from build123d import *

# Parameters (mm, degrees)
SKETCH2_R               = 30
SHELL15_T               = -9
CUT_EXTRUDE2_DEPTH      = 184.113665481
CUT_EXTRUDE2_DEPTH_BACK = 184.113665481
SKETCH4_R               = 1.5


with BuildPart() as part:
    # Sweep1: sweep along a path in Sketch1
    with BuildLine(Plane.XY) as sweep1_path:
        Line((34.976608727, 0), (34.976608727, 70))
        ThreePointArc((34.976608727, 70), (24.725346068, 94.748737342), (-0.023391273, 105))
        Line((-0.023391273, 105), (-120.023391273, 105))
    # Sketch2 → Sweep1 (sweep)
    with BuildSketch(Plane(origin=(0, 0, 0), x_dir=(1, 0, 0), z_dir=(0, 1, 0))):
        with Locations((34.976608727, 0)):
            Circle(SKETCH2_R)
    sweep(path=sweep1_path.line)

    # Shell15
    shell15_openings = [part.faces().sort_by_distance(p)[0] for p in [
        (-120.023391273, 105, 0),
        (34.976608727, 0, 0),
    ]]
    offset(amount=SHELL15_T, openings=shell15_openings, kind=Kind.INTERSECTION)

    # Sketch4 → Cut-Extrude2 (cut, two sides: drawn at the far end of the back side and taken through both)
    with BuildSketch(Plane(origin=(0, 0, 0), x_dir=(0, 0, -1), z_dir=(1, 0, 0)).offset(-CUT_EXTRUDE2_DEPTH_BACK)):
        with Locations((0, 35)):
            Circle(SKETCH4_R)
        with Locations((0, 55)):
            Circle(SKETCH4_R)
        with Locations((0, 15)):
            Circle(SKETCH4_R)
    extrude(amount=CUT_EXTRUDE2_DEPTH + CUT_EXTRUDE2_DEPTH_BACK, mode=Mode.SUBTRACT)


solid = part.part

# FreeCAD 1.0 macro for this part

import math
import FreeCAD as App
import Part
import Sketcher

V = App.Vector
Q = App.Units.Quantity


def faces_at(feature, points):
    """Names of the faces that lie closest to the given points."""
    faces = feature.Shape.Faces
    near = lambda p: min(range(len(faces)), key=lambda i: faces[i].distToShape(Part.Vertex(*p))[0])
    return sorted({f"Face{near(p) + 1}" for p in points})

doc = App.newDocument("Part")
params = doc.addObject("Spreadsheet::Sheet", "Params")
for row, (alias, value) in enumerate([
    ("sketch1_diameter", "60 mm"),
    ("sketch2_radius", "35 mm"),
    ("sketch2_width", "120 mm"),
    ("sketch2_height", "70 mm"),
    ("thickness_wall", "9 mm"),
    ("sketch3_diameter", "3 mm"),
], start=1):
    params.set(f"A{row}", alias)
    params.set(f"B{row}", "=" + value)
    params.setAlias(f"B{row}", alias)

body = doc.addObject("PartDesign::Body", "Body")

sketch1 = doc.addObject("Sketcher::SketchObject", "Sketch")
body.addObject(sketch1)
sketch1.AttachmentSupport = (doc.XZ_Plane, [""])
sketch1.MapMode = "FlatFace"
sketch1.addGeometry(Part.Circle(V(34.976609, 0, 0), V(0, 0, 1), 30), False)
sketch1.addConstraint([
    Sketcher.Constraint("PointOnObject", 0, 3, -1),
    Sketcher.Constraint("Diameter", 0, Q("60 mm")),
    Sketcher.Constraint("DistanceX", -1, 1, 0, 3, Q("34.976609 mm")),
])
sketch1.setExpression("Constraints[1]", "Params.sketch1_diameter")

sketch2 = doc.addObject("Sketcher::SketchObject", "Sketch001")
body.addObject(sketch2)
sketch2.AttachmentSupport = (doc.XY_Plane, [""])
sketch2.MapMode = "FlatFace"
sketch2.addGeometry([
    Part.LineSegment(V(34.976609, 0, 0), V(34.976609, 70, 0)),
    Part.ArcOfCircle(Part.Circle(V(-0.023391, 70, 0), V(0, 0, 1), 35), math.radians(0), math.radians(90)),
    Part.LineSegment(V(-0.023391, 105, 0), V(-120.023391, 105, 0)),
], False)
sketch2.addConstraint([
    Sketcher.Constraint("Tangent", 0, 2, 1, 1),
    Sketcher.Constraint("Tangent", 1, 2, 2, 1),
    Sketcher.Constraint("Vertical", 0),
    Sketcher.Constraint("Horizontal", 2),
    Sketcher.Constraint("PointOnObject", 0, 1, -1),
    Sketcher.Constraint("Radius", 1, Q("35 mm")),
    Sketcher.Constraint("DistanceX", 2, 2, 2, 1, Q("120 mm")),
    Sketcher.Constraint("DistanceY", 0, 1, 0, 2, Q("70 mm")),
    Sketcher.Constraint("DistanceX", 1, 3, -1, 1, Q("0.023391 mm")),
])
sketch2.setExpression("Constraints[5]", "Params.sketch2_radius")
sketch2.setExpression("Constraints[6]", "Params.sketch2_width")
sketch2.setExpression("Constraints[7]", "Params.sketch2_height")
doc.recompute()

additivepipe = doc.addObject("PartDesign::AdditivePipe", "AdditivePipe")
body.addObject(additivepipe)
additivepipe.Profile = sketch1
additivepipe.Spine = (sketch2, ["Edge1", "Edge2", "Edge3"])
doc.recompute()

thickness = doc.addObject("PartDesign::Thickness", "Thickness")
body.addObject(thickness)
thickness.Base = (additivepipe, faces_at(additivepipe, [(-120.023, 105, 0), (34.977, 0, 0)]))
thickness.setExpression("Value", "Params.thickness_wall")
thickness.Reversed = True
thickness.Join = "Intersection"

sketch3 = doc.addObject("Sketcher::SketchObject", "Sketch002")
body.addObject(sketch3)
sketch3.AttachmentSupport = (doc.YZ_Plane, [""])
sketch3.MapMode = "FlatFace"
sketch3.addGeometry([
    Part.Circle(V(35, 0, 0), V(0, 0, 1), 1.5),
    Part.Circle(V(55, 0, 0), V(0, 0, 1), 1.5),
    Part.Circle(V(15, 0, 0), V(0, 0, 1), 1.5),
], False)
sketch3.addConstraint([
    Sketcher.Constraint("Equal", 0, 1),
    Sketcher.Constraint("Equal", 1, 2),
    Sketcher.Constraint("PointOnObject", 0, 3, -1),
    Sketcher.Constraint("PointOnObject", 1, 3, -1),
    Sketcher.Constraint("PointOnObject", 2, 3, -1),
    Sketcher.Constraint("Diameter", 0, Q("3 mm")),
    Sketcher.Constraint("DistanceX", -1, 1, 0, 3, Q("35 mm")),
    Sketcher.Constraint("DistanceX", -1, 1, 1, 3, Q("55 mm")),
    Sketcher.Constraint("DistanceX", -1, 1, 2, 3, Q("15 mm")),
])
sketch3.setExpression("Constraints[5]", "Params.sketch3_diameter")
pocket1 = doc.addObject("PartDesign::Pocket", "Pocket")
body.addObject(pocket1)
pocket1.Profile = sketch3
pocket1.Type = "ThroughAll"
pocket1.Midplane = True

doc.recompute()
